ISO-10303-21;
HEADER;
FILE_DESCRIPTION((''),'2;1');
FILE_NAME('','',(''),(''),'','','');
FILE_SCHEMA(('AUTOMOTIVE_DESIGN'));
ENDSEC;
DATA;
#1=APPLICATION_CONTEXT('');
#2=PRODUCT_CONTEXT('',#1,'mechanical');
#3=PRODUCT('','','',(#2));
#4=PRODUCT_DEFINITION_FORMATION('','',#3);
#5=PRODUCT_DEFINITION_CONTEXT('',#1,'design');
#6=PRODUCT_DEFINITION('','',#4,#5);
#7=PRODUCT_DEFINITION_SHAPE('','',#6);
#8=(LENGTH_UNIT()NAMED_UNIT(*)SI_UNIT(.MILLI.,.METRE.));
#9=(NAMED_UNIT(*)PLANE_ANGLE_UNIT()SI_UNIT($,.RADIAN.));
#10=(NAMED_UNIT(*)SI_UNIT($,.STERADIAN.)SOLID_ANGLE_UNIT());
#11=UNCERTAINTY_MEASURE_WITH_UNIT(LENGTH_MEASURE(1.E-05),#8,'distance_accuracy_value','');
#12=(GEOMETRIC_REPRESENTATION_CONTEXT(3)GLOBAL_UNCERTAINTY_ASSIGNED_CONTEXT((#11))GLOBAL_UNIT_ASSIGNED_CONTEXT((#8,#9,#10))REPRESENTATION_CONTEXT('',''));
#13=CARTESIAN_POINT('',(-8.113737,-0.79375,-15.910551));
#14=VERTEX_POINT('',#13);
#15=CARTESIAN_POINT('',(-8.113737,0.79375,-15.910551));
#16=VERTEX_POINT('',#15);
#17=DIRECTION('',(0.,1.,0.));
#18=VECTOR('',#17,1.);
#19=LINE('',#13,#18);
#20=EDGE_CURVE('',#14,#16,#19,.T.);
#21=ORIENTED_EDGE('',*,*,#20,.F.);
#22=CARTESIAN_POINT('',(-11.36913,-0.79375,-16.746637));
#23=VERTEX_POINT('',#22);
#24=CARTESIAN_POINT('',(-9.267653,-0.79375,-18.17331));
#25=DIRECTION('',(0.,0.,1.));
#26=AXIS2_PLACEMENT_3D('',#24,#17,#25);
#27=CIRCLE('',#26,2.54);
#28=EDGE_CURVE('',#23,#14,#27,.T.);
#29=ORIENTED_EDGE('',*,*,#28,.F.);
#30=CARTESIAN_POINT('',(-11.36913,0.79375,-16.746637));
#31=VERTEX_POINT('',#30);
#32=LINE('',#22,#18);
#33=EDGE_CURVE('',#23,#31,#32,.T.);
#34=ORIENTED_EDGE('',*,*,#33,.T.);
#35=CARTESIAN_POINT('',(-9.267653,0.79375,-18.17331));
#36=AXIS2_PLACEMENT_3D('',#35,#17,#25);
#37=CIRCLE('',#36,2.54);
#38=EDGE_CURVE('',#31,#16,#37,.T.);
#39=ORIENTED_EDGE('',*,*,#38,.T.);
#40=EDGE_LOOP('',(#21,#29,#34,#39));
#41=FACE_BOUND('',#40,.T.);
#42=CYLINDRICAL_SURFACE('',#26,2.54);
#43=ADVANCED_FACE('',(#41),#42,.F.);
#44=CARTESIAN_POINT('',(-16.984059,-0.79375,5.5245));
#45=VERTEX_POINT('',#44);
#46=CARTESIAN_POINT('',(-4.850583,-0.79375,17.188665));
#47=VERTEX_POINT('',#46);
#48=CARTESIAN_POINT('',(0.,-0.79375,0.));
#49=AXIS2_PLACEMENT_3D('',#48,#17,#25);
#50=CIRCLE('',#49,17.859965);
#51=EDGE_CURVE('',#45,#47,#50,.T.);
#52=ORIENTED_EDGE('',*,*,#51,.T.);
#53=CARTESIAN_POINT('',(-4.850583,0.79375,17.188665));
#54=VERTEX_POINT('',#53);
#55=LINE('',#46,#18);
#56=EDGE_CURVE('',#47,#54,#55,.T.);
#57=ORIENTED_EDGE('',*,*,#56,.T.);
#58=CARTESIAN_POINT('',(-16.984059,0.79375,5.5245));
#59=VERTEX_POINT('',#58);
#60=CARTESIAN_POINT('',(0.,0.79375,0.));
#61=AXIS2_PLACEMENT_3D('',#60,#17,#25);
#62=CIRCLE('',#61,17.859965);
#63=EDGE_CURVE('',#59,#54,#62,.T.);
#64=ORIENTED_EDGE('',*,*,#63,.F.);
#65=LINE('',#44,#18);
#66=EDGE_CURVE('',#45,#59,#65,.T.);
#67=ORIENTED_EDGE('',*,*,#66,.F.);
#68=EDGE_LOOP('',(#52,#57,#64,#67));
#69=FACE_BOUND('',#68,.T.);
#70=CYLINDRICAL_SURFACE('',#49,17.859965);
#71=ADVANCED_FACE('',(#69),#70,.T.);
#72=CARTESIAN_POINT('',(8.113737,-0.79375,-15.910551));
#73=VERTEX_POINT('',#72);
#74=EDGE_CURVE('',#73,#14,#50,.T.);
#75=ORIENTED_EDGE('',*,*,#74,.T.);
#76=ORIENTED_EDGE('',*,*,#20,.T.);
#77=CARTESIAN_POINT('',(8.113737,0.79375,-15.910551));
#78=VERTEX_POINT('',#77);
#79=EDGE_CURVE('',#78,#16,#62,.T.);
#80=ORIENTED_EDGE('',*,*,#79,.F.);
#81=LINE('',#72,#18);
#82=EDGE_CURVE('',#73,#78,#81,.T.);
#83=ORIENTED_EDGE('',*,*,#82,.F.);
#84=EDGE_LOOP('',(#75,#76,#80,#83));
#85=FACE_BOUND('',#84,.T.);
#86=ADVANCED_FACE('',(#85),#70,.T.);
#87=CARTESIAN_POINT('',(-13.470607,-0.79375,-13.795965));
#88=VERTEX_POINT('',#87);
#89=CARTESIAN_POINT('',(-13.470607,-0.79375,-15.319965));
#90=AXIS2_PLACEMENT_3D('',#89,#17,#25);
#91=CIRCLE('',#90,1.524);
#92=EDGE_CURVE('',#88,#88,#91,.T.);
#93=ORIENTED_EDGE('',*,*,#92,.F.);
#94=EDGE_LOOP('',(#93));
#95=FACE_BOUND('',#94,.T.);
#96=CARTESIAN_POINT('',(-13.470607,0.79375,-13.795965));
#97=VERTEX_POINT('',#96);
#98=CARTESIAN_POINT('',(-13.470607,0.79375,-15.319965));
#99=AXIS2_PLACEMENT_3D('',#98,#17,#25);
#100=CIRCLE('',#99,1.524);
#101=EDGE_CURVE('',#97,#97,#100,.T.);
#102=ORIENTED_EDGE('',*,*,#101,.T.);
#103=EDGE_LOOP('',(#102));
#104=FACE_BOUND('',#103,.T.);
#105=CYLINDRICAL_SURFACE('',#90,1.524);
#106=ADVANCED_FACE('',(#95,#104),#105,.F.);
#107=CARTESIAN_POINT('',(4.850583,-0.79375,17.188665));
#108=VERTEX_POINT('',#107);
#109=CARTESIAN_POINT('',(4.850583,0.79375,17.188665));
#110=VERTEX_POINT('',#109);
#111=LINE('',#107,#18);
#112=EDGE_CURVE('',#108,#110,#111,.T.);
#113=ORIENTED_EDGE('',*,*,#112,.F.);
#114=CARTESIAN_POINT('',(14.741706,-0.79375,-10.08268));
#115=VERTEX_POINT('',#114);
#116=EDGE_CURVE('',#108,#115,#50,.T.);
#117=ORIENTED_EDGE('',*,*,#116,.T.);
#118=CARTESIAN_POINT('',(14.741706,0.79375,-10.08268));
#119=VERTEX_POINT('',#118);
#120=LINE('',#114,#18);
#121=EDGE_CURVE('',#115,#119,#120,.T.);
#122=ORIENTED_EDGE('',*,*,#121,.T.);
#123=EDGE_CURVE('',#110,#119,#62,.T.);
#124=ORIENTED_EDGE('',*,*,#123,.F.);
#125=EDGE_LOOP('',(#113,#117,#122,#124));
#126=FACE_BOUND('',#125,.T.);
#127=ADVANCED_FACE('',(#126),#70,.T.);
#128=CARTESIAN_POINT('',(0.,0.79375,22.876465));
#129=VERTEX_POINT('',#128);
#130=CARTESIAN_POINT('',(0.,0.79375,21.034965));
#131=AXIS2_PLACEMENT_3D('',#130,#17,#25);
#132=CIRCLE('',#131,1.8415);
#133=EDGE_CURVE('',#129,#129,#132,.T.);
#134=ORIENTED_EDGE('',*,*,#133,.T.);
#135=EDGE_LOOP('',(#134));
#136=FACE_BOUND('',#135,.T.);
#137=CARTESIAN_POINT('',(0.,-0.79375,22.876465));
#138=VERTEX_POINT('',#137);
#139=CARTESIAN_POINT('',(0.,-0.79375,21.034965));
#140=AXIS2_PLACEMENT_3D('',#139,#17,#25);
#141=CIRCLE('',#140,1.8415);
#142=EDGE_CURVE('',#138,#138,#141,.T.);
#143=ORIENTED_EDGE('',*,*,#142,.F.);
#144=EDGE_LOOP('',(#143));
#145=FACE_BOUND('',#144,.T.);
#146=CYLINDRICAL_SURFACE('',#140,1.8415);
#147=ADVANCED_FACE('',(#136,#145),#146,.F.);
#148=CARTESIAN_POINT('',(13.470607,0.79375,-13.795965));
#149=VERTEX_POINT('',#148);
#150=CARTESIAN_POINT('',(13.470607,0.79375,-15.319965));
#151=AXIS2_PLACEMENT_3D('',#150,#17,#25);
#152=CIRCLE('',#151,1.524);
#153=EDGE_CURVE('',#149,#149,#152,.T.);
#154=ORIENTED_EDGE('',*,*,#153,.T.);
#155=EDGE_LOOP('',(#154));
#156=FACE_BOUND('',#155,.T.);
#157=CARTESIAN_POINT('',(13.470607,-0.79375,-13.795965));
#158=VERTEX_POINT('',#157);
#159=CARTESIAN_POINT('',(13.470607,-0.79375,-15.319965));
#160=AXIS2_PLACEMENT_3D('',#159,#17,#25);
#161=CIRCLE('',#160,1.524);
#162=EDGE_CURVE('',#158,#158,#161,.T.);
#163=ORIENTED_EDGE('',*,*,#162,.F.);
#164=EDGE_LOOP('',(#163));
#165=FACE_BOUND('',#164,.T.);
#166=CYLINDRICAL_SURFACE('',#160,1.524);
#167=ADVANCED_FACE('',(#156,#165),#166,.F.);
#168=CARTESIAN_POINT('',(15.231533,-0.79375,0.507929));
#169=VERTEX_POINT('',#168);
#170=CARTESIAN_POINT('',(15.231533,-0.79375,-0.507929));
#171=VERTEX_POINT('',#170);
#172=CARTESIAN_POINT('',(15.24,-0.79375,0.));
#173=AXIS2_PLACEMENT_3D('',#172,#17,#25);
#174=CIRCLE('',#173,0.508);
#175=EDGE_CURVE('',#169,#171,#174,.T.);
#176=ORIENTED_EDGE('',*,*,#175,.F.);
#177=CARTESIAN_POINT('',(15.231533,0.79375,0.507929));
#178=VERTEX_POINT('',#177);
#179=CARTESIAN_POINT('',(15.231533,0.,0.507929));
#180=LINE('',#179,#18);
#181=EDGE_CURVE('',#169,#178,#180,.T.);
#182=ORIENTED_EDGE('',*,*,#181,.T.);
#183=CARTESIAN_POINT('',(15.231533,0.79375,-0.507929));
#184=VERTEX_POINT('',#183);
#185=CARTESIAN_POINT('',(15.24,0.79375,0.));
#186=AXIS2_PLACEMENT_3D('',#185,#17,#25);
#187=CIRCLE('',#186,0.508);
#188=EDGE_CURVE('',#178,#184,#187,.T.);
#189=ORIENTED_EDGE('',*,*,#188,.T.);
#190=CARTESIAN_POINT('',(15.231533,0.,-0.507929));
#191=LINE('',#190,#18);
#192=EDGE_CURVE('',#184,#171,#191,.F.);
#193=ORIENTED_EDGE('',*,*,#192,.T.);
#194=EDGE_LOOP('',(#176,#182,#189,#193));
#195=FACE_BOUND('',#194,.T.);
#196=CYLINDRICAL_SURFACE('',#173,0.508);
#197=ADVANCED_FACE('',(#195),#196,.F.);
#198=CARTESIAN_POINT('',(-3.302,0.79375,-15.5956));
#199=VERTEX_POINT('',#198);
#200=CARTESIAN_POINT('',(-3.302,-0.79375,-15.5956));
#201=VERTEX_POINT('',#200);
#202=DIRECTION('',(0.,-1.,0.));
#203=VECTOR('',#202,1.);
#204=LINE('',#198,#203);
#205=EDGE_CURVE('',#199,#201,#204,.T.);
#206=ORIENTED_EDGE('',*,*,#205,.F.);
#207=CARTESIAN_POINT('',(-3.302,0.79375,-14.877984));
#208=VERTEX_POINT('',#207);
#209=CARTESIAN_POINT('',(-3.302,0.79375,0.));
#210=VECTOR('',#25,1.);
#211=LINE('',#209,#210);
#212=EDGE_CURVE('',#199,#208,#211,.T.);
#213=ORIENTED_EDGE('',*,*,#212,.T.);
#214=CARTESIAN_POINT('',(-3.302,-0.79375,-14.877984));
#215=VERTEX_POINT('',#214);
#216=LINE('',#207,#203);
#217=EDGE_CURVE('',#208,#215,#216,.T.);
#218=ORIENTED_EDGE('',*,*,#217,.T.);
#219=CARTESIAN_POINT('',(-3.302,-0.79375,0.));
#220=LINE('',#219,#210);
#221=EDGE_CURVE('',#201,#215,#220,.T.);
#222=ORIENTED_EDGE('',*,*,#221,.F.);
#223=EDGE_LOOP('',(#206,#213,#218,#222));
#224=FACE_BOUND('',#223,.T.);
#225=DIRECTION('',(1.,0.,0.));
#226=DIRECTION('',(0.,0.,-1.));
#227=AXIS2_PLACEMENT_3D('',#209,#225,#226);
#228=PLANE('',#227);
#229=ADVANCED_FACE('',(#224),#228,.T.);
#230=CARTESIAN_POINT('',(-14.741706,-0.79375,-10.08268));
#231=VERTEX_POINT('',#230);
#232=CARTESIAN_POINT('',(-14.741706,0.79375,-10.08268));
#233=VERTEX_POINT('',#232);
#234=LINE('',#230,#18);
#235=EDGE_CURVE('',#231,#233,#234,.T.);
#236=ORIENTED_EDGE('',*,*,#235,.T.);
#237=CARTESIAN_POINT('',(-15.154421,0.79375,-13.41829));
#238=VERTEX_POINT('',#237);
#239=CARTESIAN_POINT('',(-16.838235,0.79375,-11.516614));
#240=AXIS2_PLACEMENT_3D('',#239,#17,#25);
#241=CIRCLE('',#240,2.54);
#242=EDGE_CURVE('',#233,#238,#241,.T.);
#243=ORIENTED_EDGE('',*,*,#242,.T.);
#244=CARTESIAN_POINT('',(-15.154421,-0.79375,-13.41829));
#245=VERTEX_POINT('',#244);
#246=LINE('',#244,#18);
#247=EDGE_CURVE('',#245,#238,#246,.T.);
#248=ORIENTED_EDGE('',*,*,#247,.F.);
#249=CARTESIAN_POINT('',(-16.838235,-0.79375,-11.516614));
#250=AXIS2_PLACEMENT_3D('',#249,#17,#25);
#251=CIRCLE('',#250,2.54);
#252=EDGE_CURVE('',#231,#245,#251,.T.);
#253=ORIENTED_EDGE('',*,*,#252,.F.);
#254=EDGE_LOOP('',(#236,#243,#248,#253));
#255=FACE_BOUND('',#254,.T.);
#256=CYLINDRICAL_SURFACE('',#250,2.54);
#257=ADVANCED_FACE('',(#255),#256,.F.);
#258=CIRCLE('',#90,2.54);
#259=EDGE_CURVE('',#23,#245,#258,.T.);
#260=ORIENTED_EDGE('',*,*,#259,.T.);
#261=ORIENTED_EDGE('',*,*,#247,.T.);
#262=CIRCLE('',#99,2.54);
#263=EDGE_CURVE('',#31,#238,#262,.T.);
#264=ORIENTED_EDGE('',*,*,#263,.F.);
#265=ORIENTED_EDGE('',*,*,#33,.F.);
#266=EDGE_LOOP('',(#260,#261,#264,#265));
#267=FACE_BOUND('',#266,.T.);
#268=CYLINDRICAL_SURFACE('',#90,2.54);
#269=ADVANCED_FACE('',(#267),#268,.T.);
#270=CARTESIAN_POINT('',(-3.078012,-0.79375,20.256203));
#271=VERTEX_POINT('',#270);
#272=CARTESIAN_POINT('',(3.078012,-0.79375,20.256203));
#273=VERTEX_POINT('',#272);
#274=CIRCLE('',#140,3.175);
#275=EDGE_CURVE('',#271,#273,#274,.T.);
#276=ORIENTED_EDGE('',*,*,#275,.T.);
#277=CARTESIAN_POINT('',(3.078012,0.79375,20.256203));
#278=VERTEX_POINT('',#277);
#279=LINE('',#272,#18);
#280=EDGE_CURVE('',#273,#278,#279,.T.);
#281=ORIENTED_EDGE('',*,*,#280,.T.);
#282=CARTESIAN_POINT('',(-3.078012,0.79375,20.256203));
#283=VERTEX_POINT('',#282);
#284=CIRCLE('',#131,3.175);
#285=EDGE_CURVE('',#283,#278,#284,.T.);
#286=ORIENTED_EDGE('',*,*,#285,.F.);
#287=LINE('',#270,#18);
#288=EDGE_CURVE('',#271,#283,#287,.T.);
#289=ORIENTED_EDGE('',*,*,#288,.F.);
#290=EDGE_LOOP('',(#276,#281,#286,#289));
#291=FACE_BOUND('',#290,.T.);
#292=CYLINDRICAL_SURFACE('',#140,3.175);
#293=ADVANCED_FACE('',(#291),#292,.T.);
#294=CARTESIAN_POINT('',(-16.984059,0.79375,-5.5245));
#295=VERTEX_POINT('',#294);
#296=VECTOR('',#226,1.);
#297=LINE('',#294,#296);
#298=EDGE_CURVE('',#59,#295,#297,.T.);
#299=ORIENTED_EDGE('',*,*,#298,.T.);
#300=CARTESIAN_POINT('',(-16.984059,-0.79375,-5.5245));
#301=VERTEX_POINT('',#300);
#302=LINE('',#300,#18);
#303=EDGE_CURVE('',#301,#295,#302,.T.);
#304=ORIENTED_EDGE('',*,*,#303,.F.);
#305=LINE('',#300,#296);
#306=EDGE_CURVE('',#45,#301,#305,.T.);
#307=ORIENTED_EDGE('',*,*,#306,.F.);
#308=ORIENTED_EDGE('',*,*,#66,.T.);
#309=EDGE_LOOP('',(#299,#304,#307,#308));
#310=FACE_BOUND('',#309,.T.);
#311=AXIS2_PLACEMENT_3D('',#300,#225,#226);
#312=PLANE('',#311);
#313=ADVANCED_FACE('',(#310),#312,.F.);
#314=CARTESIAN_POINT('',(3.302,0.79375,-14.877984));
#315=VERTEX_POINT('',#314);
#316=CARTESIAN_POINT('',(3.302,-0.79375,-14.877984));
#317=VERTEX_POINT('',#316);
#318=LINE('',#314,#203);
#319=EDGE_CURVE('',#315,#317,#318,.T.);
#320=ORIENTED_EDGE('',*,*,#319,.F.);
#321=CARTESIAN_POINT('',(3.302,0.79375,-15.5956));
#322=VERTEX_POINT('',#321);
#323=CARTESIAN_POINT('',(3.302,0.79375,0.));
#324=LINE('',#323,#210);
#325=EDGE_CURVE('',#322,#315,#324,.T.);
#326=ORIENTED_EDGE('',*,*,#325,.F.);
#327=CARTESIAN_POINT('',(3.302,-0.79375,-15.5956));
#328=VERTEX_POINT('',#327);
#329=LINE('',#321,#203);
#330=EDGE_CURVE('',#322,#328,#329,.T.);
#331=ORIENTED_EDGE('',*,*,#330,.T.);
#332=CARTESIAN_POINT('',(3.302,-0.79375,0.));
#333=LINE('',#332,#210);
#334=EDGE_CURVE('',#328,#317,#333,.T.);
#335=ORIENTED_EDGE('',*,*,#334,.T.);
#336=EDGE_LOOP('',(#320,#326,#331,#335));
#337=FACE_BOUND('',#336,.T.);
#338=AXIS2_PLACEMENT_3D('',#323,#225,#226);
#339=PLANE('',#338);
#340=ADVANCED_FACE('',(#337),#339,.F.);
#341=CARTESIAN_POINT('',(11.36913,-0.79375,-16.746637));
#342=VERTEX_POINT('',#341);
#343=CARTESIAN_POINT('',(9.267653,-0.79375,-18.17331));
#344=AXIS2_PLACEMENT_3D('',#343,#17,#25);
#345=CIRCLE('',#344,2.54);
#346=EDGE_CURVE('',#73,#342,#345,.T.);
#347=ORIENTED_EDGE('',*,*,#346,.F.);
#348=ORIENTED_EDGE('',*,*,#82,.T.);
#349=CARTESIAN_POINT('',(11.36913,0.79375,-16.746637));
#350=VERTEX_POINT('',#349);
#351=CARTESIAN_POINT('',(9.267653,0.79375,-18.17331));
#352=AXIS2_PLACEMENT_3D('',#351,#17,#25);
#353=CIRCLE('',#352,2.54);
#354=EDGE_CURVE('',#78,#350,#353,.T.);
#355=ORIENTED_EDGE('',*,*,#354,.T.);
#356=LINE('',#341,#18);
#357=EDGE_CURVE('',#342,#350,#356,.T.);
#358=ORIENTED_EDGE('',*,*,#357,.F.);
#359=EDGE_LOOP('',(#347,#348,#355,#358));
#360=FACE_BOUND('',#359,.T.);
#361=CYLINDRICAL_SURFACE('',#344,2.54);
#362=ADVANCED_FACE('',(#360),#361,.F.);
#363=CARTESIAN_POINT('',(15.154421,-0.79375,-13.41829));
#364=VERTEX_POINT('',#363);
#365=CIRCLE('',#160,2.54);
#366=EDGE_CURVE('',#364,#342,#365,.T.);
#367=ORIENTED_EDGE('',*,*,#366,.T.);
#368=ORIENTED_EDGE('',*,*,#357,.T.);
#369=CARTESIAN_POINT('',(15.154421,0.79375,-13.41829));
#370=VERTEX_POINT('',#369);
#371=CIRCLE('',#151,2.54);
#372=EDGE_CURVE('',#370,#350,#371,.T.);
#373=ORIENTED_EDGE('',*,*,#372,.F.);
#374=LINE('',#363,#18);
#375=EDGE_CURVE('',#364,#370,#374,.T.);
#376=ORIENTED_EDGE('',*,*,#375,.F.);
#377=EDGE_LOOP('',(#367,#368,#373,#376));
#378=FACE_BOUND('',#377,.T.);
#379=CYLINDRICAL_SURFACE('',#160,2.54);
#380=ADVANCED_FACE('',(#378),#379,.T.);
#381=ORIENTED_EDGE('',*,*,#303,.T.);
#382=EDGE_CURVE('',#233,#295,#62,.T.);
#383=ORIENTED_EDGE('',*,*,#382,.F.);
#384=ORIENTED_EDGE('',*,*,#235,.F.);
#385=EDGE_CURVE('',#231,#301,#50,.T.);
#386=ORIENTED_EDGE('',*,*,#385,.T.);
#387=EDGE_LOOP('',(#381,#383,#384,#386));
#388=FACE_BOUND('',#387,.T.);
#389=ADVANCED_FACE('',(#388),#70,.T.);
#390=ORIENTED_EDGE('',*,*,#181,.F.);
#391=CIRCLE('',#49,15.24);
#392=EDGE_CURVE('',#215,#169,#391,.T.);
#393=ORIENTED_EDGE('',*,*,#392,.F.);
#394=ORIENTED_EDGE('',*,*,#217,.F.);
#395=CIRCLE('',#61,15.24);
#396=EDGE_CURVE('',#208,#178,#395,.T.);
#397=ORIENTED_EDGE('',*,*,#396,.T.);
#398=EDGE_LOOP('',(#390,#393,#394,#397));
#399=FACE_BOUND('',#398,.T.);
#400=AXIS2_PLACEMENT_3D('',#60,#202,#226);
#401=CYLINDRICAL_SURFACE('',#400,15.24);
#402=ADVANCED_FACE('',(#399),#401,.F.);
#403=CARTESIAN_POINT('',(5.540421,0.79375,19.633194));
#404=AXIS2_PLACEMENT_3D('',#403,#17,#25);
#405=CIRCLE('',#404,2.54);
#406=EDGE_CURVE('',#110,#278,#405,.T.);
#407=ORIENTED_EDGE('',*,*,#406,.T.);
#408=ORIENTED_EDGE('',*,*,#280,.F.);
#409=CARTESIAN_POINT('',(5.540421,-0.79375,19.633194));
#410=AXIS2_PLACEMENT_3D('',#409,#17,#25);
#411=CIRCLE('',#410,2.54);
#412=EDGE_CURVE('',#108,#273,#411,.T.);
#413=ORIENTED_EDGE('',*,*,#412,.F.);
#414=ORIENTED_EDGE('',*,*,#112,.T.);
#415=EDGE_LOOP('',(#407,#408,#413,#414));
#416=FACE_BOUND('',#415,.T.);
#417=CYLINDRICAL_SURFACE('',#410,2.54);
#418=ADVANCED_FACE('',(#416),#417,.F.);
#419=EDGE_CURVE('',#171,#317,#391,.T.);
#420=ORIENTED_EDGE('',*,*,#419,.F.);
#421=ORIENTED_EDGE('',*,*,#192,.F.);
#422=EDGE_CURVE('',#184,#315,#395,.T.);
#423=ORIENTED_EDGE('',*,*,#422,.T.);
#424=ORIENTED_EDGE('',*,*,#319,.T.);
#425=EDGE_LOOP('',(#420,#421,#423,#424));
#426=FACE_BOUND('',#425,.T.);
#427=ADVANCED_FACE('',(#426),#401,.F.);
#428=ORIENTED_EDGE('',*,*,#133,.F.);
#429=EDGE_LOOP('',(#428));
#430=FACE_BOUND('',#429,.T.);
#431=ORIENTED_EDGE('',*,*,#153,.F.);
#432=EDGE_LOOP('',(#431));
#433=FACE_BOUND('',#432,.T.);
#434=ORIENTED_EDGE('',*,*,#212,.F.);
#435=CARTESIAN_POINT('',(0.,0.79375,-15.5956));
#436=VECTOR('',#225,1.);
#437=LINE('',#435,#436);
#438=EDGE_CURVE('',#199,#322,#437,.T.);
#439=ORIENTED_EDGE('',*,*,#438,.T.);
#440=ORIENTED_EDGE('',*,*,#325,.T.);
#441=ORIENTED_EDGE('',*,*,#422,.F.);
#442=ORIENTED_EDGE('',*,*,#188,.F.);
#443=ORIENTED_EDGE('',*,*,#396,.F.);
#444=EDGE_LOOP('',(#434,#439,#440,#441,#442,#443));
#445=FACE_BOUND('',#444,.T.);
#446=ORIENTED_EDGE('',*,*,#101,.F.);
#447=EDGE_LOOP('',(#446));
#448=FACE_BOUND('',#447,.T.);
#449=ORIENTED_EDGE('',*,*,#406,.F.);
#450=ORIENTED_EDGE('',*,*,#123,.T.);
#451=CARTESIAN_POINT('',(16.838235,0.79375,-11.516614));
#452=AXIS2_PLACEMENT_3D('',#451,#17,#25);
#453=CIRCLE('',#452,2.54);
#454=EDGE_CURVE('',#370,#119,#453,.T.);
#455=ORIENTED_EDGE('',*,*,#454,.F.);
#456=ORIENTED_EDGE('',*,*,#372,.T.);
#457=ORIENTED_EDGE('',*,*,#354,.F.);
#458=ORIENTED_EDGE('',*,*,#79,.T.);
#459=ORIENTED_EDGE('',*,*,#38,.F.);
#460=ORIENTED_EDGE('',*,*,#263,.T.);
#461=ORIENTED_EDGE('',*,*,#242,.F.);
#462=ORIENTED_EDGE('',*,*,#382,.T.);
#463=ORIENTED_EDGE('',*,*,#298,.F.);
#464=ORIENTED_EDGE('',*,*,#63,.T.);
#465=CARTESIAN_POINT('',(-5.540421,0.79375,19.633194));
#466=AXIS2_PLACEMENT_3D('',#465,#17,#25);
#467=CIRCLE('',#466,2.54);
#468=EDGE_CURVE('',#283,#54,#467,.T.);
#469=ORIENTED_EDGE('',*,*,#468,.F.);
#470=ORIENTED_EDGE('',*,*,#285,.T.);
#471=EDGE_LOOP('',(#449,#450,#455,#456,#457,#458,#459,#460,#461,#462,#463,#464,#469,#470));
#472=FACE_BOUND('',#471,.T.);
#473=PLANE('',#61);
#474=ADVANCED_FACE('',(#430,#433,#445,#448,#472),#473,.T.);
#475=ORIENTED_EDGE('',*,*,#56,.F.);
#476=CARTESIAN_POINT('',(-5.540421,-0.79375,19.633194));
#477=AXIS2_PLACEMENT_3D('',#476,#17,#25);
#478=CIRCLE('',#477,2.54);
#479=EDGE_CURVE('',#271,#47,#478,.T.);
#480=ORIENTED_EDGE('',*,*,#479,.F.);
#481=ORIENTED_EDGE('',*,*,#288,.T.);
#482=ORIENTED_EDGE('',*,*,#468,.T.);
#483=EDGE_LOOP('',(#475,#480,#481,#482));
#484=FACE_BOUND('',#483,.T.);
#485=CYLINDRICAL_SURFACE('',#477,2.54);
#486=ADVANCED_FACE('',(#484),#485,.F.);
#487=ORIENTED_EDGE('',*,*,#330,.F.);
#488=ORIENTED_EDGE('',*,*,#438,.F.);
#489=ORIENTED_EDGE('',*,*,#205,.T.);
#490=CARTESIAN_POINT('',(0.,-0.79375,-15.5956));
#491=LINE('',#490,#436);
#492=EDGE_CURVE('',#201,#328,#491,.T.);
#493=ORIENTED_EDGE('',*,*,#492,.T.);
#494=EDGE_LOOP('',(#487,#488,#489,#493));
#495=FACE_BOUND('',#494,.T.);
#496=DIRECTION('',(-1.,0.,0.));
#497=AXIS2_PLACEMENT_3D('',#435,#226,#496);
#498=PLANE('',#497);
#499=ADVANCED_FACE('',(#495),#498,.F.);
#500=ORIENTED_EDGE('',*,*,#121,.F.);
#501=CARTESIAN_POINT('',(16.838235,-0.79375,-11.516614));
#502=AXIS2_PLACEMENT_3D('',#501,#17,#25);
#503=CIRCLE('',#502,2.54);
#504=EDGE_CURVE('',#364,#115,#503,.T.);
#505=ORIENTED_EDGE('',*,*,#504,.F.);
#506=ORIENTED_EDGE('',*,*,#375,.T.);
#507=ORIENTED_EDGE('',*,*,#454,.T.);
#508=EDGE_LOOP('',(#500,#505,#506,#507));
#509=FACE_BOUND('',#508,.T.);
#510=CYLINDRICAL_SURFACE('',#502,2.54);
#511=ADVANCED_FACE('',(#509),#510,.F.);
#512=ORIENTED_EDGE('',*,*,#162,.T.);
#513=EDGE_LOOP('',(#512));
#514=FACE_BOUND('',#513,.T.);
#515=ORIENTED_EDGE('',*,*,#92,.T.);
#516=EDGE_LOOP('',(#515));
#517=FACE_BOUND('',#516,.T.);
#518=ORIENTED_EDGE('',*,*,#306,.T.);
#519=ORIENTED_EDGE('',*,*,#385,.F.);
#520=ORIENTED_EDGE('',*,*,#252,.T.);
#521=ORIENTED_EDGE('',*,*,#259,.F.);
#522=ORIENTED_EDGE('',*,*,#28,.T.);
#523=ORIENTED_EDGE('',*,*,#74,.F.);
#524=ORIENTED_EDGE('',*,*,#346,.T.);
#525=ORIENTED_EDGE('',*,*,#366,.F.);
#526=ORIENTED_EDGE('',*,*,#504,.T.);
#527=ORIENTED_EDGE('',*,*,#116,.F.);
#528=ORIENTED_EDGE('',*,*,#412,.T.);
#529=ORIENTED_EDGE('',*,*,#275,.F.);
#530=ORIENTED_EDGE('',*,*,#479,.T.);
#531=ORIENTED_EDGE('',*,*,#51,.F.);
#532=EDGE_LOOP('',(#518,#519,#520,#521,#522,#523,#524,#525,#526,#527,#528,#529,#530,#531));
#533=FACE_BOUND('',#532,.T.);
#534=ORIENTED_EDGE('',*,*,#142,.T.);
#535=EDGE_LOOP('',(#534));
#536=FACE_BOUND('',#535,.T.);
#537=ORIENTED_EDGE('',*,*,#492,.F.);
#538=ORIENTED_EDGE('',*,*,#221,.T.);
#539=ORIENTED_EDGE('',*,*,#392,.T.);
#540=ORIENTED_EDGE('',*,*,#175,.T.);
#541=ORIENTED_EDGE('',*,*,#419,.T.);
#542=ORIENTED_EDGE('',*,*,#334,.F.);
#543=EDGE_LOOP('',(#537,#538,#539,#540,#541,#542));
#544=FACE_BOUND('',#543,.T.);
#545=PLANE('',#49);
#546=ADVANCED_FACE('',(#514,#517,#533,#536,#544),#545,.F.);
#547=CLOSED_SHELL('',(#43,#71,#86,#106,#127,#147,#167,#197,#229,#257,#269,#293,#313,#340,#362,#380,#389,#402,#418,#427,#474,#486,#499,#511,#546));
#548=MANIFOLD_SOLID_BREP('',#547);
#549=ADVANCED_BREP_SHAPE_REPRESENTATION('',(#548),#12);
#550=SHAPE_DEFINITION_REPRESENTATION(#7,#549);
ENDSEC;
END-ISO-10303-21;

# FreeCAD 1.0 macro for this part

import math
import FreeCAD as App
import Part
import Sketcher

V = App.Vector
Q = App.Units.Quantity

doc = App.newDocument("Part")
params = doc.addObject("Spreadsheet::Sheet", "Params")
for row, (alias, value) in enumerate([
    ("sketch1_diameter", "1.7 in"),
    ("sketch1_radius", "0.6 in"),
    ("sketch1_width", "0.26 in"),
    ("pad1_length", "0.0625 in"),
    ("sketch2_diameter", "0.112 in"),
    ("sketch3_radius", "0.85 in"),
    ("sketch3_height", "0.435 in"),
    ("sketch4_diameter", "0.04 in"),
    ("sketch5_radius", "0.85 in"),
    ("sketch5_radius2", "0.056 in"),
    ("pocket4_length", "31.574113 mm"),
    ("sketch6_radius", "0.1 in"),
    ("sketch6_diameter", "0.12 in"),
    ("sketch6_diameter2", "0.145 in"),
    ("sketch6_radius2", "0.056 in"),
    ("sketch6_radius3", "0.125 in"),
    ("pad2_length", "0.0625 in"),
], start=1):
    params.set(f"A{row}", alias)
    params.set(f"B{row}", "=" + value)
    params.setAlias(f"B{row}", alias)

body = doc.addObject("PartDesign::Body", "Body")

# Sketch on XZ plane
sketch1 = body.newObject("Sketcher::SketchObject", "Sketch")
sketch1.AttachmentSupport = (doc.getObject("XZ_Plane"), [""])
sketch1.MapMode = "FlatFace"
sketch1.addGeometry([
    Part.Circle(V(0, 0, 0), V(0, 0, 1), 21.59),  # 0
    Part.ArcOfCircle(Part.Circle(V(0, 0, 0), V(0, 0, 1), 15.24), math.radians(0), math.radians(257.486675)),  # 1
    Part.LineSegment(V(-3.302, -14.877984, 0), V(-3.302, -15.5956, 0)),  # 2
    Part.LineSegment(V(-3.302, -15.5956, 0), V(3.302, -15.5956, 0)),  # 3
    Part.LineSegment(V(3.302, -15.5956, 0), V(3.302, -14.877984, 0)),  # 4
    Part.ArcOfCircle(Part.Circle(V(0, 0, 0), V(0, 0, 1), 15.24), math.radians(-77.486675), math.radians(0)),  # 5
], False)
sketch1.addConstraint([
    Sketcher.Constraint("Coincident", 1, 2, 2, 1),
    Sketcher.Constraint("Coincident", 2, 2, 3, 1),
    Sketcher.Constraint("Coincident", 3, 2, 4, 1),
    Sketcher.Constraint("Coincident", 4, 2, 5, 1),
    Sketcher.Constraint("Tangent", 5, 2, 1, 1),
    Sketcher.Constraint("Vertical", 2),
    Sketcher.Constraint("Horizontal", 3),
    Sketcher.Constraint("Vertical", 4),
    Sketcher.Constraint("Coincident", 0, 3, -1, 1),
    Sketcher.Constraint("Coincident", 1, 3, -1, 1),
    Sketcher.Constraint("Equal", 1, 5),
    Sketcher.Constraint("PointOnObject", 5, 2, -1),
    Sketcher.Constraint("Horizontal", 1, 2, 4, 2),
    Sketcher.Constraint("Diameter", 0, Q("1.7 in")),
    Sketcher.Constraint("Radius", 1, Q("0.6 in")),
    Sketcher.Constraint("DistanceX", 3, 1, 3, 2, Q("0.26 in")),
    Sketcher.Constraint("DistanceY", 2, 2, -1, 1, Q("0.614 in")),
])
sketch1.setExpression("Constraints[13]", "Params.sketch1_diameter")
sketch1.setExpression("Constraints[14]", "Params.sketch1_radius")
sketch1.setExpression("Constraints[15]", "Params.sketch1_width")
pad1 = body.newObject("PartDesign::Pad", "Pad")
pad1.Profile = sketch1
pad1.setExpression("Length", "Params.pad1_length")
pad1.Midplane = True

# Sketch on XZ plane
sketch2 = body.newObject("Sketcher::SketchObject", "Sketch001")
sketch2.AttachmentSupport = (doc.getObject("XZ_Plane"), [""])
sketch2.MapMode = "FlatFace"
sketch2.AttachmentOffset = App.Placement(V(0, 0, -0.03125 * 25.4), App.Rotation())
sketch2.addGeometry([
    Part.Circle(V(0, -18.415, 0), V(0, 0, 1), 1.4224),
    Part.Circle(V(0, 18.415, 0), V(0, 0, 1), 1.4224),
], False)
sketch2.addConstraint([
    Sketcher.Constraint("Equal", 0, 1),
    Sketcher.Constraint("Symmetric", 0, 3, 1, 3, -1, 1),
    Sketcher.Constraint("PointOnObject", 0, 3, -2),
    Sketcher.Constraint("Diameter", 0, Q("0.112 in")),
    Sketcher.Constraint("DistanceY", 0, 3, 1, 3, Q("1.45 in")),
])
sketch2.setExpression("Constraints[3]", "Params.sketch2_diameter")
pocket1 = body.newObject("PartDesign::Pocket", "Pocket")
pocket1.Profile = sketch2
pocket1.Type = "ThroughAll"
pocket1.Reversed = True

# Sketch on XZ plane
sketch3 = body.newObject("Sketcher::SketchObject", "Sketch002")
sketch3.AttachmentSupport = (doc.getObject("XZ_Plane"), [""])
sketch3.MapMode = "FlatFace"
sketch3.AttachmentOffset = App.Placement(V(0, 0, -0.03125 * 25.4), App.Rotation())
sketch3.addGeometry([
    Part.LineSegment(V(-16.984059, -5.5245, 0), V(-20.871224, -5.5245, 0)),
    Part.ArcOfCircle(Part.Circle(V(0, 0, 0), V(0, 0, 1), 21.59), math.radians(165.174125), math.radians(194.825875)),
    Part.LineSegment(V(-20.871224, 5.5245, 0), V(-16.984059, 5.5245, 0)),
    Part.LineSegment(V(-16.984059, 5.5245, 0), V(-16.984059, -5.5245, 0)),
], False)
sketch3.addConstraint([
    Sketcher.Constraint("Coincident", 0, 2, 1, 2),
    Sketcher.Constraint("Coincident", 1, 1, 2, 1),
    Sketcher.Constraint("Coincident", 2, 2, 3, 1),
    Sketcher.Constraint("Coincident", 3, 2, 0, 1),
    Sketcher.Constraint("Horizontal", 0),
    Sketcher.Constraint("Horizontal", 2),
    Sketcher.Constraint("Vertical", 3),
    Sketcher.Constraint("Coincident", 1, 3, -1, 1),
    Sketcher.Constraint("Vertical", 0, 2, 1, 1),
    Sketcher.Constraint("Radius", 1, Q("0.85 in")),
    Sketcher.Constraint("DistanceY", 3, 2, 3, 1, Q("0.435 in")),
    Sketcher.Constraint("DistanceX", 0, 2, 0, 1, 3.887165),
])
sketch3.setExpression("Constraints[9]", "Params.sketch3_radius")
sketch3.setExpression("Constraints[10]", "Params.sketch3_height")
pocket2 = body.newObject("PartDesign::Pocket", "Pocket001")
pocket2.Profile = sketch3
pocket2.Type = "ThroughAll"
pocket2.Reversed = True

# Sketch on XZ plane
sketch4 = body.newObject("Sketcher::SketchObject", "Sketch003")
sketch4.AttachmentSupport = (doc.getObject("XZ_Plane"), [""])
sketch4.MapMode = "FlatFace"
sketch4.AttachmentOffset = App.Placement(V(0, 0, -0.03125 * 25.4), App.Rotation())
sketch4.addGeometry(Part.Circle(V(15.24, 0, 0), V(0, 0, 1), 0.508), False)
sketch4.addConstraint([
    Sketcher.Constraint("PointOnObject", 0, 3, -1),
    Sketcher.Constraint("Diameter", 0, Q("0.04 in")),
    Sketcher.Constraint("DistanceX", -1, 1, 0, 3, Q("0.6 in")),
])
sketch4.setExpression("Constraints[1]", "Params.sketch4_diameter")
pocket3 = body.newObject("PartDesign::Pocket", "Pocket002")
pocket3.Profile = sketch4
pocket3.Type = "ThroughAll"
pocket3.Reversed = True

# Sketch on XZ plane
sketch5 = body.newObject("Sketcher::SketchObject", "Sketch004")
sketch5.AttachmentSupport = (doc.getObject("XZ_Plane"), [""])
sketch5.MapMode = "FlatFace"
sketch5.AttachmentOffset = App.Placement(V(0, 0, -0.03125 * 25.4), App.Rotation())
sketch5.addGeometry([
    Part.ArcOfCircle(Part.Circle(V(0, 0, 0), V(0, 0, 1), 17.859965), math.radians(-161.981557), math.radians(-148.80008)),  # 0
    Part.ArcOfCircle(Part.Circle(V(0, 0, 0), V(0, 0, 1), 17.859965), math.radians(-148.80008), math.radians(-136.554088)),  # 1
    Part.ArcOfCircle(Part.Circle(V(0, 0, 0), V(0, 0, 1), 17.859965), math.radians(-136.554088), math.radians(-94.1385)),  # 2
    Part.ArcOfCircle(Part.Circle(V(0, -18.415, 0), V(0, 0, 1), 1.4224), math.radians(154.979006), math.radians(360)),  # 3
    Part.ArcOfCircle(Part.Circle(V(0, -18.415, 0), V(0, 0, 1), 1.4224), math.radians(0), math.radians(25.020994)),  # 4
    Part.ArcOfCircle(Part.Circle(V(0, 0, 0), V(0, 0, 1), 17.859965), math.radians(-85.8615), math.radians(-58.80008)),  # 5
    Part.ArcOfCircle(Part.Circle(V(0, 0, 0), V(0, 0, 1), 17.859965), math.radians(-58.80008), math.radians(-46.554088)),  # 6
    Part.ArcOfCircle(Part.Circle(V(0, 0, 0), V(0, 0, 1), 17.859965), math.radians(-46.554088), math.radians(0)),  # 7
    Part.ArcOfCircle(Part.Circle(V(0, 0, 0), V(0, 0, 1), 17.859965), math.radians(0), math.radians(31.19992)),  # 8
    Part.ArcOfCircle(Part.Circle(V(0, 0, 0), V(0, 0, 1), 17.859965), math.radians(31.19992), math.radians(43.445912)),  # 9
    Part.ArcOfCircle(Part.Circle(V(0, 0, 0), V(0, 0, 1), 17.859965), math.radians(43.445912), math.radians(76.19992)),  # 10
    Part.ArcOfCircle(Part.Circle(V(0, 0, 0), V(0, 0, 1), 17.859965), math.radians(76.19992), math.radians(85.8615)),  # 11
    Part.ArcOfCircle(Part.Circle(V(0, 18.415, 0), V(0, 0, 1), 1.4224), math.radians(-25.020994), math.radians(0)),  # 12
    Part.ArcOfCircle(Part.Circle(V(0, 18.415, 0), V(0, 0, 1), 1.4224), math.radians(0), math.radians(59.354391)),  # 13
    Part.ArcOfCircle(Part.Circle(V(0, 18.415, 0), V(0, 0, 1), 1.4224), math.radians(59.354391), math.radians(205.020994)),  # 14
    Part.ArcOfCircle(Part.Circle(V(0, 0, 0), V(0, 0, 1), 17.859965), math.radians(94.1385), math.radians(121.19992)),  # 15
    Part.ArcOfCircle(Part.Circle(V(0, 0, 0), V(0, 0, 1), 17.859965), math.radians(121.19992), math.radians(133.445912)),  # 16
    Part.ArcOfCircle(Part.Circle(V(0, 0, 0), V(0, 0, 1), 17.859965), math.radians(133.445912), math.radians(161.981557)),  # 17
    Part.LineSegment(V(-16.984059, 5.5245, 0), V(-20.871224, 5.5245, 0)),  # 18
    Part.ArcOfCircle(Part.Circle(V(0, 0, 0), V(0, 0, 1), 21.59), math.radians(131.207785), math.radians(165.174125)),  # 19
    Part.ArcOfCircle(Part.Circle(V(0, 0, 0), V(0, 0, 1), 21.59), math.radians(123.438047), math.radians(131.207785)),  # 20
    Part.ArcOfCircle(Part.Circle(V(0, 0, 0), V(0, 0, 1), 21.59), math.radians(86.207785), math.radians(123.438047)),  # 21
    Part.ArcOfCircle(Part.Circle(V(0, 0, 0), V(0, 0, 1), 21.59), math.radians(78.438047), math.radians(86.207785)),  # 22
    Part.ArcOfCircle(Part.Circle(V(0, 0, 0), V(0, 0, 1), 21.59), math.radians(41.207785), math.radians(78.438047)),  # 23
    Part.ArcOfCircle(Part.Circle(V(0, 0, 0), V(0, 0, 1), 21.59), math.radians(33.438047), math.radians(41.207785)),  # 24
    Part.ArcOfCircle(Part.Circle(V(0, 0, 0), V(0, 0, 1), 21.59), math.radians(-48.792215), math.radians(33.438047)),  # 25
    Part.ArcOfCircle(Part.Circle(V(0, 0, 0), V(0, 0, 1), 21.59), math.radians(-56.561953), math.radians(-48.792215)),  # 26
    Part.ArcOfCircle(Part.Circle(V(0, 0, 0), V(0, 0, 1), 21.59), math.radians(-138.792215), math.radians(-56.561953)),  # 27
    Part.ArcOfCircle(Part.Circle(V(0, 0, 0), V(0, 0, 1), 21.59), math.radians(-146.561953), math.radians(-138.792215)),  # 28
    Part.ArcOfCircle(Part.Circle(V(0, 0, 0), V(0, 0, 1), 21.59), math.radians(-165.174125), math.radians(-146.561953)),  # 29
    Part.LineSegment(V(-20.871224, -5.5245, 0), V(-16.984059, -5.5245, 0)),  # 30
], False)
sketch5.addConstraint([
    Sketcher.Constraint("Tangent", 0, 2, 1, 1),
    Sketcher.Constraint("Tangent", 1, 2, 2, 1),
    Sketcher.Constraint("Coincident", 2, 2, 3, 1),
    Sketcher.Constraint("Tangent", 3, 2, 4, 1),
    Sketcher.Constraint("Coincident", 4, 2, 5, 1),
    Sketcher.Constraint("Tangent", 5, 2, 6, 1),
    Sketcher.Constraint("Tangent", 6, 2, 7, 1),
    Sketcher.Constraint("Tangent", 7, 2, 8, 1),
    Sketcher.Constraint("Tangent", 8, 2, 9, 1),
    Sketcher.Constraint("Tangent", 9, 2, 10, 1),
    Sketcher.Constraint("Tangent", 10, 2, 11, 1),
    Sketcher.Constraint("Coincident", 11, 2, 12, 1),
    Sketcher.Constraint("Tangent", 12, 2, 13, 1),
    Sketcher.Constraint("Tangent", 13, 2, 14, 1),
    Sketcher.Constraint("Coincident", 14, 2, 15, 1),
    Sketcher.Constraint("Tangent", 15, 2, 16, 1),
    Sketcher.Constraint("Tangent", 16, 2, 17, 1),
    Sketcher.Constraint("Coincident", 17, 2, 18, 1),
    Sketcher.Constraint("Coincident", 18, 2, 19, 2),
    Sketcher.Constraint("Tangent", 19, 1, 20, 2),
    Sketcher.Constraint("Tangent", 20, 1, 21, 2),
    Sketcher.Constraint("Tangent", 21, 1, 22, 2),
    Sketcher.Constraint("Tangent", 22, 1, 23, 2),
    Sketcher.Constraint("Tangent", 23, 1, 24, 2),
    Sketcher.Constraint("Tangent", 24, 1, 25, 2),
    Sketcher.Constraint("Tangent", 25, 1, 26, 2),
    Sketcher.Constraint("Tangent", 26, 1, 27, 2),
    Sketcher.Constraint("Tangent", 27, 1, 28, 2),
    Sketcher.Constraint("Tangent", 28, 1, 29, 2),
    Sketcher.Constraint("Coincident", 29, 1, 30, 1),
    Sketcher.Constraint("Coincident", 30, 2, 0, 1),
    Sketcher.Constraint("Horizontal", 18),
    Sketcher.Constraint("Horizontal", 30),
    Sketcher.Constraint("Coincident", 0, 3, -1, 1),
    Sketcher.Constraint("Coincident", 2, 3, -1, 1),
    Sketcher.Constraint("Coincident", 5, 3, -1, 1),
    Sketcher.Constraint("Coincident", 7, 3, -1, 1),
    Sketcher.Constraint("Coincident", 9, 3, -1, 1),
    Sketcher.Constraint("Coincident", 11, 3, -1, 1),
    Sketcher.Constraint("Coincident", 15, 3, -1, 1),
    Sketcher.Constraint("Coincident", 17, 3, -1, 1),
    Sketcher.Constraint("Coincident", 19, 3, -1, 1),
    Sketcher.Constraint("Coincident", 21, 3, -1, 1),
    Sketcher.Constraint("Coincident", 23, 3, -1, 1),
    Sketcher.Constraint("Coincident", 25, 3, -1, 1),
    Sketcher.Constraint("Coincident", 27, 3, -1, 1),
    Sketcher.Constraint("Coincident", 29, 3, -1, 1),
    Sketcher.Constraint("Coincident", 14, 3, 12, 3),
    Sketcher.Constraint("Equal", 3, 4),
    Sketcher.Constraint("Equal", 2, 5),
    Sketcher.Constraint("Equal", 4, 12),
    Sketcher.Constraint("Equal", 11, 15),
    Sketcher.Constraint("Symmetric", 3, 3, 12, 3, -1, 1),
    Sketcher.Constraint("Symmetric", 3, 2, 12, 2, -1),
    Sketcher.Constraint("PointOnObject", 7, 2, -1),
    Sketcher.Constraint("Horizontal", 4, 3, 3, 2),
    Sketcher.Constraint("Vertical", 18, 2, 29, 1),
    Sketcher.Constraint("Radius", 19, Q("0.85 in")),
    Sketcher.Constraint("Radius", 3, Q("0.056 in")),
    Sketcher.Constraint("DistanceY", 3, 3, -1, 1, Q("0.725 in")),
    Sketcher.Constraint("DistanceY", 29, 1, 18, 2, Q("0.435 in")),
    Sketcher.Constraint("Radius", 0, 17.859965),
    Sketcher.Constraint("DistanceX", 8, 2, 7, 2, Q("0.1016999 in")),
    Sketcher.Constraint("DistanceX", 13, 2, 11, 2, Q("0.0221999 in")),
    Sketcher.Constraint("DistanceX", 18, 2, 15, 2, 11.619301),
    Sketcher.Constraint("DistanceX", 19, 1, 14, 2, 12.934401),
    Sketcher.Constraint("DistanceX", 21, 1, 22, 1, 2.899301),
    Sketcher.Constraint("DistanceX", 4, 2, 25, 1, 12.934401),
    Sketcher.Constraint("DistanceX", 0, 2, -1, 1, 15.276789),
    Sketcher.Constraint("DistanceX", 1, 2, -1, 1, 12.966761),
    Sketcher.Constraint("DistanceY", 5, 2, -1, 1, 15.276789),
    Sketcher.Constraint("DistanceY", 6, 2, -1, 1, 12.966761),
    Sketcher.Constraint("DistanceX", -1, 1, 9, 2, 12.966761),
    Sketcher.Constraint("DistanceY", -1, 1, 10, 2, 17.344418),
    Sketcher.Constraint("DistanceY", -1, 1, 16, 2, 12.966761),
    Sketcher.Constraint("DistanceY", -1, 1, 20, 1, 18.016469),
    Sketcher.Constraint("DistanceX", -1, 1, 24, 1, 18.016469),
    Sketcher.Constraint("DistanceY", 26, 1, -1, 1, 18.016469),
    Sketcher.Constraint("DistanceX", 28, 1, -1, 1, 18.016469),
    Sketcher.Constraint("DistanceX", 13, 2, 21, 1, 0.702892),
    Sketcher.Constraint("DistanceY", 9, 2, 23, 1, 1.941559),
    Sketcher.Constraint("DistanceY", 27, 1, 1, 2, 1.941559),
])
sketch5.setExpression("Constraints[57]", "Params.sketch5_radius")
sketch5.setExpression("Constraints[58]", "Params.sketch5_radius2")
pocket4 = body.newObject("PartDesign::Pocket", "Pocket003")
pocket4.Profile = sketch5
pocket4.setExpression("Length", "Params.pocket4_length")
pocket4.Reversed = True

# Sketch on XZ plane
sketch6 = body.newObject("Sketcher::SketchObject", "Sketch005")
sketch6.AttachmentSupport = (doc.getObject("XZ_Plane"), [""])
sketch6.MapMode = "FlatFace"
sketch6.AttachmentOffset = App.Placement(V(0, 0, -0.03125 * 25.4), App.Rotation())
sketch6.addGeometry([
    Part.ArcOfCircle(Part.Circle(V(0, -18.415, 0), V(0, 0, 1), 1.4224), math.radians(25.020994), math.radians(154.979006)),  # 0
    Part.ArcOfCircle(Part.Circle(V(0, 0, 0), V(0, 0, 1), 17.859965), math.radians(-94.1385), math.radians(-85.8615)),  # 1
    Part.ArcOfCircle(Part.Circle(V(9.267653, -18.17331, 0), V(0, 0, 1), 2.54), math.radians(34.1722), math.radians(117.019744)),  # 2
    Part.ArcOfCircle(Part.Circle(V(0, 0, 0), V(0, 0, 1), 17.859965), math.radians(-62.980259), math.radians(-34.370415)),  # 3
    Part.ArcOfCircle(Part.Circle(V(16.838235, -11.516614, 0), V(0, 0, 1), 2.54), math.radians(145.629582), math.radians(228.477126)),  # 4
    Part.ArcOfCircle(Part.Circle(V(13.470607, -15.319965, 0), V(0, 0, 1), 2.54), math.radians(-145.827796), math.radians(48.477122)),  # 5
    Part.Circle(V(13.470607, -15.319965, 0), V(0, 0, 1), 1.524),  # 6
    Part.ArcOfCircle(Part.Circle(V(-9.267653, -18.17331, 0), V(0, 0, 1), 2.54), math.radians(62.980261), math.radians(145.827799)),  # 7
    Part.ArcOfCircle(Part.Circle(V(-13.470607, -15.319965, 0), V(0, 0, 1), 2.54), math.radians(131.522878), math.radians(325.827797)),  # 8
    Part.ArcOfCircle(Part.Circle(V(-16.838235, -11.516614, 0), V(0, 0, 1), 2.54), math.radians(-48.477126), math.radians(34.370415)),  # 9
    Part.ArcOfCircle(Part.Circle(V(0, 0, 0), V(0, 0, 1), 17.859965), math.radians(-145.629585), math.radians(-117.019742)),  # 10
    Part.Circle(V(-13.470607, -15.319965, 0), V(0, 0, 1), 1.524),  # 11
    Part.ArcOfCircle(Part.Circle(V(5.540421, 19.633194, 0), V(0, 0, 1), 2.54), math.radians(165.801674), math.radians(254.241123)),  # 12
    Part.ArcOfCircle(Part.Circle(V(0, 0, 0), V(0, 0, 1), 17.859965), math.radians(74.241112), math.radians(85.8615)),  # 13
    Part.ArcOfCircle(Part.Circle(V(0, 18.415, 0), V(0, 0, 1), 1.4224), math.radians(-154.979006), math.radians(-25.020994)),  # 14
    Part.ArcOfCircle(Part.Circle(V(0, 0, 0), V(0, 0, 1), 17.859965), math.radians(94.1385), math.radians(105.758886)),  # 15
    Part.ArcOfCircle(Part.Circle(V(-5.540421, 19.633194, 0), V(0, 0, 1), 2.54), math.radians(-74.241112), math.radians(14.198326)),  # 16
    Part.ArcOfCircle(Part.Circle(V(0, 21.034965, 0), V(0, 0, 1), 3.175), math.radians(-14.198347), math.radians(194.198347)),  # 17
    Part.Circle(V(0, 21.034965, 0), V(0, 0, 1), 1.8415),  # 18
], False)
sketch6.addConstraint([
    Sketcher.Constraint("Coincident", 0, 1, 1, 2),
    Sketcher.Constraint("Coincident", 1, 1, 0, 2),
    Sketcher.Constraint("Tangent", 2, 2, 3, 1),
    Sketcher.Constraint("Tangent", 3, 2, 4, 1),
    Sketcher.Constraint("Tangent", 4, 2, 5, 2),
    Sketcher.Constraint("Tangent", 5, 1, 2, 1),
    Sketcher.Constraint("Tangent", 7, 2, 8, 2),
    Sketcher.Constraint("Tangent", 8, 1, 9, 1),
    Sketcher.Constraint("Tangent", 9, 2, 10, 1),
    Sketcher.Constraint("Tangent", 10, 2, 7, 1),
    Sketcher.Constraint("Tangent", 12, 2, 13, 1),
    Sketcher.Constraint("Coincident", 13, 2, 14, 2),
    Sketcher.Constraint("Coincident", 14, 1, 15, 1),
    Sketcher.Constraint("Tangent", 15, 2, 16, 1),
    Sketcher.Constraint("Tangent", 16, 2, 17, 2),
    Sketcher.Constraint("Tangent", 17, 1, 12, 1),
    Sketcher.Constraint("Coincident", 1, 3, -1, 1),
    Sketcher.Constraint("Coincident", 3, 3, -1, 1),
    Sketcher.Constraint("Coincident", 10, 3, -1, 1),
    Sketcher.Constraint("Coincident", 13, 3, -1, 1),
    Sketcher.Constraint("Coincident", 15, 3, -1, 1),
    Sketcher.Constraint("Coincident", 6, 3, 5, 3),
    Sketcher.Constraint("Coincident", 11, 3, 8, 3),
    Sketcher.Constraint("Coincident", 18, 3, 17, 3),
    Sketcher.Constraint("Equal", 1, 3),
    Sketcher.Constraint("Equal", 2, 4),
    Sketcher.Constraint("Equal", 4, 5),
    Sketcher.Constraint("Equal", 5, 7),
    Sketcher.Constraint("Equal", 7, 8),
    Sketcher.Constraint("Equal", 8, 9),
    Sketcher.Constraint("Equal", 3, 10),
    Sketcher.Constraint("Equal", 6, 11),
    Sketcher.Constraint("Equal", 9, 12),
    Sketcher.Constraint("Equal", 10, 13),
    Sketcher.Constraint("Equal", 0, 14),
    Sketcher.Constraint("Equal", 13, 15),
    Sketcher.Constraint("Equal", 12, 16),
    Sketcher.Constraint("Symmetric", 0, 3, 14, 3, -1, 1),
    Sketcher.Constraint("Symmetric", 5, 3, 8, 3, -2),
    Sketcher.Constraint("PointOnObject", 0, 3, -2),
    Sketcher.Constraint("PointOnObject", 17, 3, -2),
    Sketcher.Constraint("Radius", 2, Q("0.1 in")),
    Sketcher.Constraint("Diameter", 6, Q("0.12 in")),
    Sketcher.Constraint("Diameter", 18, Q("0.145 in")),
    Sketcher.Constraint("Radius", 0, Q("0.056 in")),
    Sketcher.Constraint("Radius", 17, Q("0.125 in")),
    Sketcher.Constraint("DistanceY", 0, 3, -1, 1, Q("0.725 in")),
    Sketcher.Constraint("Radius", 1, 17.859965),
    Sketcher.Constraint("DistanceX", 5, 3, 3, 2, 1.2711),
    Sketcher.Constraint("DistanceY", 12, 2, 17, 3, 3.8463),
    Sketcher.Constraint("DistanceY", 2, 3, -1, 1, 18.17331),
])
sketch6.setExpression("Constraints[41]", "Params.sketch6_radius")
sketch6.setExpression("Constraints[42]", "Params.sketch6_diameter")
sketch6.setExpression("Constraints[43]", "Params.sketch6_diameter2")
sketch6.setExpression("Constraints[44]", "Params.sketch6_radius2")
sketch6.setExpression("Constraints[45]", "Params.sketch6_radius3")
pad2 = body.newObject("PartDesign::Pad", "Pad001")
pad2.Profile = sketch6
pad2.setExpression("Length", "Params.pad2_length")

doc.recompute()
